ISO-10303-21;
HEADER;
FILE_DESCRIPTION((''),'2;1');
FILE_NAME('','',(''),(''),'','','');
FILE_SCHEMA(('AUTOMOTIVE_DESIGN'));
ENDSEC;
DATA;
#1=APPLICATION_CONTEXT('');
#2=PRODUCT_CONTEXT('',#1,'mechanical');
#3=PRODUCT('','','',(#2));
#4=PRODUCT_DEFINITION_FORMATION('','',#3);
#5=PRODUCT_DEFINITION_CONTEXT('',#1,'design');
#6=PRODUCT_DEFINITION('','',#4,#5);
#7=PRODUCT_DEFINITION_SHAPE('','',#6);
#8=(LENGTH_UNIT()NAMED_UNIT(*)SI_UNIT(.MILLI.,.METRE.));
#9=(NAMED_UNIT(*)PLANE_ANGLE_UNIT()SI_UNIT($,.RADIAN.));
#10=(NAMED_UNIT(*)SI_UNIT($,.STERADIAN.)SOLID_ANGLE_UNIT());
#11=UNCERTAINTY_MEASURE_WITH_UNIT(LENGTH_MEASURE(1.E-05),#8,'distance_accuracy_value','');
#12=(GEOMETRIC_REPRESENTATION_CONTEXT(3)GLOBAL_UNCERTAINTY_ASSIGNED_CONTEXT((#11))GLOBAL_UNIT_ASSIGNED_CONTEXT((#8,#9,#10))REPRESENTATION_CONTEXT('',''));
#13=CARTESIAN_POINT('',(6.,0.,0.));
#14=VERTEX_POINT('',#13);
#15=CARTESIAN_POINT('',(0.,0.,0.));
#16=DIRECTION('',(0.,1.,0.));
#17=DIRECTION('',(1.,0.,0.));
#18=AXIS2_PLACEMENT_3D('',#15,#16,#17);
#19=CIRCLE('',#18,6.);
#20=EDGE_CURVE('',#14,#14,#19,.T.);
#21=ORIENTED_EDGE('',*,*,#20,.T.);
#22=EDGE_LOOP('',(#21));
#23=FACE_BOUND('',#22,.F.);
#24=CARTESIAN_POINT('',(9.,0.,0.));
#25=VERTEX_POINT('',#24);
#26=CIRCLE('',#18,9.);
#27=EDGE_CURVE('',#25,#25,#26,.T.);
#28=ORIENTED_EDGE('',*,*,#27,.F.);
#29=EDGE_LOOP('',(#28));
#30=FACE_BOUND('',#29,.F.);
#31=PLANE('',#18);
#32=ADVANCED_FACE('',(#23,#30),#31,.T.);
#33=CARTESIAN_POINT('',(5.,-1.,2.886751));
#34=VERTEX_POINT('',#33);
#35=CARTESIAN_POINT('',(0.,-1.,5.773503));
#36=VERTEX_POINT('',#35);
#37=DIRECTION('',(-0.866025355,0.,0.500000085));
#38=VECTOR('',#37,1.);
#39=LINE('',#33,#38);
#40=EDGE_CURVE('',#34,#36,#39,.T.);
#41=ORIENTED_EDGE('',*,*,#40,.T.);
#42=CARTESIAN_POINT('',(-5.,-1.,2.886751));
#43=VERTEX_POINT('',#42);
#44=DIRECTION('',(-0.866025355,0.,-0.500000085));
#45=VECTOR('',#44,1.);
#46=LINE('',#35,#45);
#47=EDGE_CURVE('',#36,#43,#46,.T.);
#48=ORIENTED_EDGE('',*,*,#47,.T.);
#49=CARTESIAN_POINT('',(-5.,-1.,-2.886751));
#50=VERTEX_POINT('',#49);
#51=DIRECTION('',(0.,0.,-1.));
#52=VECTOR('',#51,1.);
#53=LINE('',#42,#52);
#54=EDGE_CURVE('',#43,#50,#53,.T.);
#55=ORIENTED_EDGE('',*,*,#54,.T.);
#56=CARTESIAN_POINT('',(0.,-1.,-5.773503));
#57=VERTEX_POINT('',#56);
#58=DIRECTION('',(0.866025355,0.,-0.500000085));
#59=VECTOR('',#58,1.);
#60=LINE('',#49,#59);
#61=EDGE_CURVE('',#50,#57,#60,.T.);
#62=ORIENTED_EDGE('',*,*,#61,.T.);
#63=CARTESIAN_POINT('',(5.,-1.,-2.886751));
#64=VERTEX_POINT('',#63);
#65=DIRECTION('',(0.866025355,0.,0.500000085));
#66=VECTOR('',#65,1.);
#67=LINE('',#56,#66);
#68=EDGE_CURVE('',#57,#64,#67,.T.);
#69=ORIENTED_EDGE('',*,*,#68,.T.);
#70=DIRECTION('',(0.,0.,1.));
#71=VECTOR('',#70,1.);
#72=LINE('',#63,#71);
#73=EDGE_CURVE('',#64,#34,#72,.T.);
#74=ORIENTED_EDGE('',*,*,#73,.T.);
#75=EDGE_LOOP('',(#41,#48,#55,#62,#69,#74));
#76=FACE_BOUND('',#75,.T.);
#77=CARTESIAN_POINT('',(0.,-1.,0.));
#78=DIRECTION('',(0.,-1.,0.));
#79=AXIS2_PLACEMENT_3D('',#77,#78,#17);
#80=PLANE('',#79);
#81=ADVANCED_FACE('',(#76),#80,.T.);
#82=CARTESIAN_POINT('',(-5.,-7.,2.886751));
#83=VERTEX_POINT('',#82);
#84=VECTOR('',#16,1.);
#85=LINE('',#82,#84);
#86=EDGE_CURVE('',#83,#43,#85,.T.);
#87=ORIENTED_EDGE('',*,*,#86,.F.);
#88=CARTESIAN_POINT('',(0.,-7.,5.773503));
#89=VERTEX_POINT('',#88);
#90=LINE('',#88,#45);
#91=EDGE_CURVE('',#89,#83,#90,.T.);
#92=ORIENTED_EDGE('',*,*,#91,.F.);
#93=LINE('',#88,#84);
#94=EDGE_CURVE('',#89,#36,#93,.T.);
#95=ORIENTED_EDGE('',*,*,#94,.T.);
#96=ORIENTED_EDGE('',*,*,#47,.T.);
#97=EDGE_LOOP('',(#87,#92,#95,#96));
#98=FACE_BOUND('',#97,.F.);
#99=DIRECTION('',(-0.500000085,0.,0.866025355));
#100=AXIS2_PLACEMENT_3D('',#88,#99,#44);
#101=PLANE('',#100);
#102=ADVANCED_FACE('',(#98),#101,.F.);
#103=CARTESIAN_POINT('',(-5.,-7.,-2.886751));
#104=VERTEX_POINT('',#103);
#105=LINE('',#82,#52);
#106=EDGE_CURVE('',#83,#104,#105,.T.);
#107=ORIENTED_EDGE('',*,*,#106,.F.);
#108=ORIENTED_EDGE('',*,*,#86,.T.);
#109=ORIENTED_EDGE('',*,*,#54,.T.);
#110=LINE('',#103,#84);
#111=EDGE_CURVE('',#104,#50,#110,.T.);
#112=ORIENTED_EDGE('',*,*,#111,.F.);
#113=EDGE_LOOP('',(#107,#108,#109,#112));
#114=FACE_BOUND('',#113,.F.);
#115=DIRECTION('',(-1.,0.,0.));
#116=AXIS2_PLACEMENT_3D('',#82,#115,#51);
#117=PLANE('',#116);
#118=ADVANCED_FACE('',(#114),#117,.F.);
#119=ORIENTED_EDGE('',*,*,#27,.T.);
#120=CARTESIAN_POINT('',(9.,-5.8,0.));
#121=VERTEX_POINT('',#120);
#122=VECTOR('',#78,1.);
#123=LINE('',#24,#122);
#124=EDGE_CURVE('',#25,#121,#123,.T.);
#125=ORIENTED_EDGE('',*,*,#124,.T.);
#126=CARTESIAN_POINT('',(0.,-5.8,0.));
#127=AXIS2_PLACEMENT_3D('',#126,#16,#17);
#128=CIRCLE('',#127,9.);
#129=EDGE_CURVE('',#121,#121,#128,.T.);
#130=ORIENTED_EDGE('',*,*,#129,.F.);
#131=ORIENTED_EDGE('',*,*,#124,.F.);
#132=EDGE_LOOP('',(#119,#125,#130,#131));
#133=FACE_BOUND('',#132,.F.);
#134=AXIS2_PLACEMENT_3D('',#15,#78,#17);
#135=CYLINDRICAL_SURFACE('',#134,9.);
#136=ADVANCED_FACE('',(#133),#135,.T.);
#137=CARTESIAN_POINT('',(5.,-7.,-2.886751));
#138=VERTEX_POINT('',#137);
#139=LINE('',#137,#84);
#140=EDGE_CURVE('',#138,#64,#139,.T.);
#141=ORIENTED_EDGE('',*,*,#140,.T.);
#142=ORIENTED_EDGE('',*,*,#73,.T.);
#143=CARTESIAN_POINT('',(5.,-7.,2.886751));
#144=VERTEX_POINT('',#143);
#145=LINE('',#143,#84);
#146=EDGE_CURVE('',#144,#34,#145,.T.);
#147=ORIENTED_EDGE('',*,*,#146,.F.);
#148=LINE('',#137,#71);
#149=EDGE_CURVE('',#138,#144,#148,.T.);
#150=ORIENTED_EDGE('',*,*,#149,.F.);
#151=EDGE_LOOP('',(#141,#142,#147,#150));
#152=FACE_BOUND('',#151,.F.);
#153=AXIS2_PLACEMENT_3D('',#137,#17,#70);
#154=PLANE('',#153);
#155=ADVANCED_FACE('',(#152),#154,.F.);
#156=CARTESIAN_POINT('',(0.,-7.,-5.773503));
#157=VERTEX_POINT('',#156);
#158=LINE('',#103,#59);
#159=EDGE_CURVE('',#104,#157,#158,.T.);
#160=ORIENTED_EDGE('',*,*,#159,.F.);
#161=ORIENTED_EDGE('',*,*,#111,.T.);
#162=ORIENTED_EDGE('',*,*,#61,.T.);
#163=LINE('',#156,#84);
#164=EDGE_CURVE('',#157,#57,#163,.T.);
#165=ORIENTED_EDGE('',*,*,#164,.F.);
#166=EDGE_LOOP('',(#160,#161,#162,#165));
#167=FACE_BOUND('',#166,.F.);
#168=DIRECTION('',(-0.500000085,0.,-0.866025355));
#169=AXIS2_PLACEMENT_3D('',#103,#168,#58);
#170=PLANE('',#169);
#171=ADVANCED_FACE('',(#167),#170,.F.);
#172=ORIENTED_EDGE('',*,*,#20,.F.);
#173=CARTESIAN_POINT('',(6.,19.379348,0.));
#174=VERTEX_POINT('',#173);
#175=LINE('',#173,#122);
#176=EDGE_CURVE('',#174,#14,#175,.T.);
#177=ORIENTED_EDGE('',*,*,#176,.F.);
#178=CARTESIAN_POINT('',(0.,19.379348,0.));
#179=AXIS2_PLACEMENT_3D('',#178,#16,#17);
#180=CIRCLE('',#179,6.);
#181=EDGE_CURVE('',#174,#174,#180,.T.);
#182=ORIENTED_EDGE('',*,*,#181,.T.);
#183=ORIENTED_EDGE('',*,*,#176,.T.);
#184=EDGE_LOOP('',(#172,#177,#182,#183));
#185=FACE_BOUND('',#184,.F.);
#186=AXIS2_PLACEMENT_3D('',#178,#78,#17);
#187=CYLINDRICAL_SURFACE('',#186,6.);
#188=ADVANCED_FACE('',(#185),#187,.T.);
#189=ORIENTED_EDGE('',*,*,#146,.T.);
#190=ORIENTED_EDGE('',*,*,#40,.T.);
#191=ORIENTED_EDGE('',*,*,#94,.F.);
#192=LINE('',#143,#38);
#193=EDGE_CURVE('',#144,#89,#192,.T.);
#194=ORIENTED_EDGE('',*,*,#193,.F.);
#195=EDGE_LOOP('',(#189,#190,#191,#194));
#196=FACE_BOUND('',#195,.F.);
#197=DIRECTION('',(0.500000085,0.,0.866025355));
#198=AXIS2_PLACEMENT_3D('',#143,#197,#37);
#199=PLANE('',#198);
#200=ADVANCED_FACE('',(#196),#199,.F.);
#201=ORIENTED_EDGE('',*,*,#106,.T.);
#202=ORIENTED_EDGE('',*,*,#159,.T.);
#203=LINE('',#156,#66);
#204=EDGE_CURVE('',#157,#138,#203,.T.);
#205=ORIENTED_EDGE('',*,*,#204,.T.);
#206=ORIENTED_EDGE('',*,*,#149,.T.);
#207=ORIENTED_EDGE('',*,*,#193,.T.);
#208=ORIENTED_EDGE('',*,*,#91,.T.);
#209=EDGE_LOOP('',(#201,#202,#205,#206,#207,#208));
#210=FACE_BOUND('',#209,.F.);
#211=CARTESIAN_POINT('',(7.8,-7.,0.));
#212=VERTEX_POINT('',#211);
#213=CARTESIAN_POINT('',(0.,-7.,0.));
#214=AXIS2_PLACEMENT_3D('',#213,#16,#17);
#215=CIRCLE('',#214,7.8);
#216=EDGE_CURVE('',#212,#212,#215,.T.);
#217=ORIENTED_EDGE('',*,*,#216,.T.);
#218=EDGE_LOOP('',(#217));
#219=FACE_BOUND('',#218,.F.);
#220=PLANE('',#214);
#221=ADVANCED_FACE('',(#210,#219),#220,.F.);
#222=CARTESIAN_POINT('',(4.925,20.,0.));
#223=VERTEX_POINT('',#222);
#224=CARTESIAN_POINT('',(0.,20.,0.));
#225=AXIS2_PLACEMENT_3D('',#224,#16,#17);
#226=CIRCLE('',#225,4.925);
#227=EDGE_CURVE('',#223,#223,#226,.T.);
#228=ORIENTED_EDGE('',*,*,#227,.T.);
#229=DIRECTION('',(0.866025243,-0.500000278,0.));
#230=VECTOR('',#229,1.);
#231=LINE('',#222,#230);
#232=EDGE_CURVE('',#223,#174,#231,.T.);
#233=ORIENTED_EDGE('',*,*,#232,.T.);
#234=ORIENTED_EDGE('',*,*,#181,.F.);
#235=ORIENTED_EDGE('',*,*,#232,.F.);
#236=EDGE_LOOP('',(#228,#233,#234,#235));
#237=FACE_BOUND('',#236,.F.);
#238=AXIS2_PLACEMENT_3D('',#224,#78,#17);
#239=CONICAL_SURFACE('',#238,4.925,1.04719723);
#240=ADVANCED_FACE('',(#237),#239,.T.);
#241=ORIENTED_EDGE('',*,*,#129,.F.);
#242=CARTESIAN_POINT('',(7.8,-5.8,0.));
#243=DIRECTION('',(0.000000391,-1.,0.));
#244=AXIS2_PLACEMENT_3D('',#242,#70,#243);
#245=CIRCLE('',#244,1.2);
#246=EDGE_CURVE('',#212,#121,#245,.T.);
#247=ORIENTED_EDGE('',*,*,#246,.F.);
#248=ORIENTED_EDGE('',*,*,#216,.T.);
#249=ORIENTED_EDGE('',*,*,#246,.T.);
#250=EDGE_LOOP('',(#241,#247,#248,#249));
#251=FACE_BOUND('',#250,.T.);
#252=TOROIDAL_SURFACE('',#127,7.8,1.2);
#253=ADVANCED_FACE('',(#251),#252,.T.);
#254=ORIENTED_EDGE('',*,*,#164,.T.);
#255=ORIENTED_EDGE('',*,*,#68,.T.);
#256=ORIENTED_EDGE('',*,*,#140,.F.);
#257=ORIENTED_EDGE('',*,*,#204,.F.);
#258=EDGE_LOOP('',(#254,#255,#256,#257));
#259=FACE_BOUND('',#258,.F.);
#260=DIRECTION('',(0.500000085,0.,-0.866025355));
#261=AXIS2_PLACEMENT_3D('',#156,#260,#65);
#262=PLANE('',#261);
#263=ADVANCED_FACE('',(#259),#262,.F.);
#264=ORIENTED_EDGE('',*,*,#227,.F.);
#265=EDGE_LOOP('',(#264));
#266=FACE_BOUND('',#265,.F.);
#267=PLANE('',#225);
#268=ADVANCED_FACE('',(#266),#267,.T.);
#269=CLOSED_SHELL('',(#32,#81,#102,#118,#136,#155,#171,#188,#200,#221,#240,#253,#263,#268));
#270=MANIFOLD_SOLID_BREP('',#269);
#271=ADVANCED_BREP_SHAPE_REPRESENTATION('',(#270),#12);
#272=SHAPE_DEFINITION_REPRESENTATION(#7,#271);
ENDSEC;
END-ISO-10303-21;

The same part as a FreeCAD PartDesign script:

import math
import FreeCAD as App
import Part
import Sketcher

V = App.Vector
Q = App.Units.Quantity


def add_polygon(sketch, points):
    """Adds a closed chain of lines whose ends are joined by coincident constraints."""
    first, n = sketch.GeometryCount, len(points)
    for a, b in zip(points, points[1:] + points[:1]):
        sketch.addGeometry(Part.LineSegment(App.Vector(*a, 0), App.Vector(*b, 0)), False)
    for i in range(n):
        sketch.addConstraint(Sketcher.Constraint("Coincident", first + i, 2, first + (i + 1) % n, 1))

doc = App.newDocument("Part")
body = doc.addObject("PartDesign::Body", "Body")

# Sketch on XY plane
sketch1 = body.newObject("Sketcher::SketchObject", "Sketch")
sketch1.AttachmentSupport = (doc.getObject("XY_Plane"), [""])
sketch1.MapMode = "FlatFace"
sketch1.addGeometry([
    Part.LineSegment(V(9, 0, 0), V(6, 0, 0)),  # 0
    Part.LineSegment(V(6, 0, 0), V(6, 19.4, 0)),  # 1
    Part.LineSegment(V(6, 19.4, 0), V(4.9, 20, 0)),  # 2
    Part.LineSegment(V(4.9, 20, 0), V(0, 20, 0)),  # 3
    Part.LineSegment(V(0, 20, 0), V(0, -7, 0)),  # 4
    Part.LineSegment(V(0, -7, 0), V(7.8, -7, 0)),  # 5
    Part.ArcOfCircle(Part.Circle(V(7.8, -5.8, 0), V(0, 0, 1), 1.2), math.radians(-90), math.radians(0)),  # 6
    Part.LineSegment(V(9, -5.8, 0), V(9, 0, 0)),  # 7
], False)
sketch1.addConstraint([
    Sketcher.Constraint("Coincident", 0, 2, 1, 1),
    Sketcher.Constraint("Coincident", 1, 2, 2, 1),
    Sketcher.Constraint("Coincident", 2, 2, 3, 1),
    Sketcher.Constraint("Coincident", 3, 2, 4, 1),
    Sketcher.Constraint("Coincident", 4, 2, 5, 1),
    Sketcher.Constraint("Tangent", 5, 2, 6, 1),
    Sketcher.Constraint("Tangent", 6, 2, 7, 1),
    Sketcher.Constraint("Coincident", 7, 2, 0, 1),
    Sketcher.Constraint("Horizontal", 0),
    Sketcher.Constraint("Vertical", 1),
    Sketcher.Constraint("Horizontal", 3),
    Sketcher.Constraint("Vertical", 4),
    Sketcher.Constraint("Horizontal", 5),
    Sketcher.Constraint("Vertical", 7),
    Sketcher.Constraint("PointOnObject", 0, 2, -1),
    Sketcher.Constraint("PointOnObject", 3, 2, -2),
    Sketcher.Constraint("Radius", 6, 1.2),
    Sketcher.Constraint("DistanceX", 0, 2, 0, 1, 3.0),
    Sketcher.Constraint("DistanceY", 4, 2, 4, 1, 27.0),
    Sketcher.Constraint("Angle", 2, Q("149.999982 deg")),
    Sketcher.Constraint("DistanceX", 5, 1, 5, 2, 7.8),
    Sketcher.Constraint("DistanceY", 7, 1, 7, 2, 5.8),
    Sketcher.Constraint("DistanceX", 3, 2, 3, 1, 4.925),
])
revolution = body.newObject("PartDesign::Revolution", "Revolution")
revolution.Profile = sketch1
revolution.ReferenceAxis = (sketch1, ["V_Axis"])
revolution.Angle = 360

# Sketch on XZ plane
sketch2 = body.newObject("Sketcher::SketchObject", "Sketch001")
sketch2.AttachmentSupport = (doc.getObject("XZ_Plane"), [""])
sketch2.MapMode = "FlatFace"
sketch2.AttachmentOffset = App.Placement(V(0, 0, 7), App.Rotation())
add_polygon(sketch2, [(-5, 3), (-5, -3), (0, -6), (5, -3), (5, 3), (0, 6)])  # lines 0-5
sketch2.addConstraint([
    Sketcher.Constraint("Vertical", 0),
    Sketcher.Constraint("Vertical", 3),
    Sketcher.Constraint("Symmetric", 0, 2, 3, 2, -1, 1),
    Sketcher.Constraint("Symmetric", 1, 2, 4, 2, -1, 1),
    Sketcher.Constraint("PointOnObject", 1, 2, -2),
    Sketcher.Constraint("Parallel", 2, 5),
    Sketcher.Constraint("Horizontal", 0, 2, 2, 2),
    Sketcher.Constraint("Angle", 1, Q("-30.000006 deg")),
    Sketcher.Constraint("DistanceX", 0, 2, -1, 1, 5.0),
    Sketcher.Constraint("DistanceY", 0, 2, 0, 1, 5.773502),
])
pocket1 = body.newObject("PartDesign::Pocket", "Pocket")
pocket1.Profile = sketch2
pocket1.Length = 6

doc.recompute()
